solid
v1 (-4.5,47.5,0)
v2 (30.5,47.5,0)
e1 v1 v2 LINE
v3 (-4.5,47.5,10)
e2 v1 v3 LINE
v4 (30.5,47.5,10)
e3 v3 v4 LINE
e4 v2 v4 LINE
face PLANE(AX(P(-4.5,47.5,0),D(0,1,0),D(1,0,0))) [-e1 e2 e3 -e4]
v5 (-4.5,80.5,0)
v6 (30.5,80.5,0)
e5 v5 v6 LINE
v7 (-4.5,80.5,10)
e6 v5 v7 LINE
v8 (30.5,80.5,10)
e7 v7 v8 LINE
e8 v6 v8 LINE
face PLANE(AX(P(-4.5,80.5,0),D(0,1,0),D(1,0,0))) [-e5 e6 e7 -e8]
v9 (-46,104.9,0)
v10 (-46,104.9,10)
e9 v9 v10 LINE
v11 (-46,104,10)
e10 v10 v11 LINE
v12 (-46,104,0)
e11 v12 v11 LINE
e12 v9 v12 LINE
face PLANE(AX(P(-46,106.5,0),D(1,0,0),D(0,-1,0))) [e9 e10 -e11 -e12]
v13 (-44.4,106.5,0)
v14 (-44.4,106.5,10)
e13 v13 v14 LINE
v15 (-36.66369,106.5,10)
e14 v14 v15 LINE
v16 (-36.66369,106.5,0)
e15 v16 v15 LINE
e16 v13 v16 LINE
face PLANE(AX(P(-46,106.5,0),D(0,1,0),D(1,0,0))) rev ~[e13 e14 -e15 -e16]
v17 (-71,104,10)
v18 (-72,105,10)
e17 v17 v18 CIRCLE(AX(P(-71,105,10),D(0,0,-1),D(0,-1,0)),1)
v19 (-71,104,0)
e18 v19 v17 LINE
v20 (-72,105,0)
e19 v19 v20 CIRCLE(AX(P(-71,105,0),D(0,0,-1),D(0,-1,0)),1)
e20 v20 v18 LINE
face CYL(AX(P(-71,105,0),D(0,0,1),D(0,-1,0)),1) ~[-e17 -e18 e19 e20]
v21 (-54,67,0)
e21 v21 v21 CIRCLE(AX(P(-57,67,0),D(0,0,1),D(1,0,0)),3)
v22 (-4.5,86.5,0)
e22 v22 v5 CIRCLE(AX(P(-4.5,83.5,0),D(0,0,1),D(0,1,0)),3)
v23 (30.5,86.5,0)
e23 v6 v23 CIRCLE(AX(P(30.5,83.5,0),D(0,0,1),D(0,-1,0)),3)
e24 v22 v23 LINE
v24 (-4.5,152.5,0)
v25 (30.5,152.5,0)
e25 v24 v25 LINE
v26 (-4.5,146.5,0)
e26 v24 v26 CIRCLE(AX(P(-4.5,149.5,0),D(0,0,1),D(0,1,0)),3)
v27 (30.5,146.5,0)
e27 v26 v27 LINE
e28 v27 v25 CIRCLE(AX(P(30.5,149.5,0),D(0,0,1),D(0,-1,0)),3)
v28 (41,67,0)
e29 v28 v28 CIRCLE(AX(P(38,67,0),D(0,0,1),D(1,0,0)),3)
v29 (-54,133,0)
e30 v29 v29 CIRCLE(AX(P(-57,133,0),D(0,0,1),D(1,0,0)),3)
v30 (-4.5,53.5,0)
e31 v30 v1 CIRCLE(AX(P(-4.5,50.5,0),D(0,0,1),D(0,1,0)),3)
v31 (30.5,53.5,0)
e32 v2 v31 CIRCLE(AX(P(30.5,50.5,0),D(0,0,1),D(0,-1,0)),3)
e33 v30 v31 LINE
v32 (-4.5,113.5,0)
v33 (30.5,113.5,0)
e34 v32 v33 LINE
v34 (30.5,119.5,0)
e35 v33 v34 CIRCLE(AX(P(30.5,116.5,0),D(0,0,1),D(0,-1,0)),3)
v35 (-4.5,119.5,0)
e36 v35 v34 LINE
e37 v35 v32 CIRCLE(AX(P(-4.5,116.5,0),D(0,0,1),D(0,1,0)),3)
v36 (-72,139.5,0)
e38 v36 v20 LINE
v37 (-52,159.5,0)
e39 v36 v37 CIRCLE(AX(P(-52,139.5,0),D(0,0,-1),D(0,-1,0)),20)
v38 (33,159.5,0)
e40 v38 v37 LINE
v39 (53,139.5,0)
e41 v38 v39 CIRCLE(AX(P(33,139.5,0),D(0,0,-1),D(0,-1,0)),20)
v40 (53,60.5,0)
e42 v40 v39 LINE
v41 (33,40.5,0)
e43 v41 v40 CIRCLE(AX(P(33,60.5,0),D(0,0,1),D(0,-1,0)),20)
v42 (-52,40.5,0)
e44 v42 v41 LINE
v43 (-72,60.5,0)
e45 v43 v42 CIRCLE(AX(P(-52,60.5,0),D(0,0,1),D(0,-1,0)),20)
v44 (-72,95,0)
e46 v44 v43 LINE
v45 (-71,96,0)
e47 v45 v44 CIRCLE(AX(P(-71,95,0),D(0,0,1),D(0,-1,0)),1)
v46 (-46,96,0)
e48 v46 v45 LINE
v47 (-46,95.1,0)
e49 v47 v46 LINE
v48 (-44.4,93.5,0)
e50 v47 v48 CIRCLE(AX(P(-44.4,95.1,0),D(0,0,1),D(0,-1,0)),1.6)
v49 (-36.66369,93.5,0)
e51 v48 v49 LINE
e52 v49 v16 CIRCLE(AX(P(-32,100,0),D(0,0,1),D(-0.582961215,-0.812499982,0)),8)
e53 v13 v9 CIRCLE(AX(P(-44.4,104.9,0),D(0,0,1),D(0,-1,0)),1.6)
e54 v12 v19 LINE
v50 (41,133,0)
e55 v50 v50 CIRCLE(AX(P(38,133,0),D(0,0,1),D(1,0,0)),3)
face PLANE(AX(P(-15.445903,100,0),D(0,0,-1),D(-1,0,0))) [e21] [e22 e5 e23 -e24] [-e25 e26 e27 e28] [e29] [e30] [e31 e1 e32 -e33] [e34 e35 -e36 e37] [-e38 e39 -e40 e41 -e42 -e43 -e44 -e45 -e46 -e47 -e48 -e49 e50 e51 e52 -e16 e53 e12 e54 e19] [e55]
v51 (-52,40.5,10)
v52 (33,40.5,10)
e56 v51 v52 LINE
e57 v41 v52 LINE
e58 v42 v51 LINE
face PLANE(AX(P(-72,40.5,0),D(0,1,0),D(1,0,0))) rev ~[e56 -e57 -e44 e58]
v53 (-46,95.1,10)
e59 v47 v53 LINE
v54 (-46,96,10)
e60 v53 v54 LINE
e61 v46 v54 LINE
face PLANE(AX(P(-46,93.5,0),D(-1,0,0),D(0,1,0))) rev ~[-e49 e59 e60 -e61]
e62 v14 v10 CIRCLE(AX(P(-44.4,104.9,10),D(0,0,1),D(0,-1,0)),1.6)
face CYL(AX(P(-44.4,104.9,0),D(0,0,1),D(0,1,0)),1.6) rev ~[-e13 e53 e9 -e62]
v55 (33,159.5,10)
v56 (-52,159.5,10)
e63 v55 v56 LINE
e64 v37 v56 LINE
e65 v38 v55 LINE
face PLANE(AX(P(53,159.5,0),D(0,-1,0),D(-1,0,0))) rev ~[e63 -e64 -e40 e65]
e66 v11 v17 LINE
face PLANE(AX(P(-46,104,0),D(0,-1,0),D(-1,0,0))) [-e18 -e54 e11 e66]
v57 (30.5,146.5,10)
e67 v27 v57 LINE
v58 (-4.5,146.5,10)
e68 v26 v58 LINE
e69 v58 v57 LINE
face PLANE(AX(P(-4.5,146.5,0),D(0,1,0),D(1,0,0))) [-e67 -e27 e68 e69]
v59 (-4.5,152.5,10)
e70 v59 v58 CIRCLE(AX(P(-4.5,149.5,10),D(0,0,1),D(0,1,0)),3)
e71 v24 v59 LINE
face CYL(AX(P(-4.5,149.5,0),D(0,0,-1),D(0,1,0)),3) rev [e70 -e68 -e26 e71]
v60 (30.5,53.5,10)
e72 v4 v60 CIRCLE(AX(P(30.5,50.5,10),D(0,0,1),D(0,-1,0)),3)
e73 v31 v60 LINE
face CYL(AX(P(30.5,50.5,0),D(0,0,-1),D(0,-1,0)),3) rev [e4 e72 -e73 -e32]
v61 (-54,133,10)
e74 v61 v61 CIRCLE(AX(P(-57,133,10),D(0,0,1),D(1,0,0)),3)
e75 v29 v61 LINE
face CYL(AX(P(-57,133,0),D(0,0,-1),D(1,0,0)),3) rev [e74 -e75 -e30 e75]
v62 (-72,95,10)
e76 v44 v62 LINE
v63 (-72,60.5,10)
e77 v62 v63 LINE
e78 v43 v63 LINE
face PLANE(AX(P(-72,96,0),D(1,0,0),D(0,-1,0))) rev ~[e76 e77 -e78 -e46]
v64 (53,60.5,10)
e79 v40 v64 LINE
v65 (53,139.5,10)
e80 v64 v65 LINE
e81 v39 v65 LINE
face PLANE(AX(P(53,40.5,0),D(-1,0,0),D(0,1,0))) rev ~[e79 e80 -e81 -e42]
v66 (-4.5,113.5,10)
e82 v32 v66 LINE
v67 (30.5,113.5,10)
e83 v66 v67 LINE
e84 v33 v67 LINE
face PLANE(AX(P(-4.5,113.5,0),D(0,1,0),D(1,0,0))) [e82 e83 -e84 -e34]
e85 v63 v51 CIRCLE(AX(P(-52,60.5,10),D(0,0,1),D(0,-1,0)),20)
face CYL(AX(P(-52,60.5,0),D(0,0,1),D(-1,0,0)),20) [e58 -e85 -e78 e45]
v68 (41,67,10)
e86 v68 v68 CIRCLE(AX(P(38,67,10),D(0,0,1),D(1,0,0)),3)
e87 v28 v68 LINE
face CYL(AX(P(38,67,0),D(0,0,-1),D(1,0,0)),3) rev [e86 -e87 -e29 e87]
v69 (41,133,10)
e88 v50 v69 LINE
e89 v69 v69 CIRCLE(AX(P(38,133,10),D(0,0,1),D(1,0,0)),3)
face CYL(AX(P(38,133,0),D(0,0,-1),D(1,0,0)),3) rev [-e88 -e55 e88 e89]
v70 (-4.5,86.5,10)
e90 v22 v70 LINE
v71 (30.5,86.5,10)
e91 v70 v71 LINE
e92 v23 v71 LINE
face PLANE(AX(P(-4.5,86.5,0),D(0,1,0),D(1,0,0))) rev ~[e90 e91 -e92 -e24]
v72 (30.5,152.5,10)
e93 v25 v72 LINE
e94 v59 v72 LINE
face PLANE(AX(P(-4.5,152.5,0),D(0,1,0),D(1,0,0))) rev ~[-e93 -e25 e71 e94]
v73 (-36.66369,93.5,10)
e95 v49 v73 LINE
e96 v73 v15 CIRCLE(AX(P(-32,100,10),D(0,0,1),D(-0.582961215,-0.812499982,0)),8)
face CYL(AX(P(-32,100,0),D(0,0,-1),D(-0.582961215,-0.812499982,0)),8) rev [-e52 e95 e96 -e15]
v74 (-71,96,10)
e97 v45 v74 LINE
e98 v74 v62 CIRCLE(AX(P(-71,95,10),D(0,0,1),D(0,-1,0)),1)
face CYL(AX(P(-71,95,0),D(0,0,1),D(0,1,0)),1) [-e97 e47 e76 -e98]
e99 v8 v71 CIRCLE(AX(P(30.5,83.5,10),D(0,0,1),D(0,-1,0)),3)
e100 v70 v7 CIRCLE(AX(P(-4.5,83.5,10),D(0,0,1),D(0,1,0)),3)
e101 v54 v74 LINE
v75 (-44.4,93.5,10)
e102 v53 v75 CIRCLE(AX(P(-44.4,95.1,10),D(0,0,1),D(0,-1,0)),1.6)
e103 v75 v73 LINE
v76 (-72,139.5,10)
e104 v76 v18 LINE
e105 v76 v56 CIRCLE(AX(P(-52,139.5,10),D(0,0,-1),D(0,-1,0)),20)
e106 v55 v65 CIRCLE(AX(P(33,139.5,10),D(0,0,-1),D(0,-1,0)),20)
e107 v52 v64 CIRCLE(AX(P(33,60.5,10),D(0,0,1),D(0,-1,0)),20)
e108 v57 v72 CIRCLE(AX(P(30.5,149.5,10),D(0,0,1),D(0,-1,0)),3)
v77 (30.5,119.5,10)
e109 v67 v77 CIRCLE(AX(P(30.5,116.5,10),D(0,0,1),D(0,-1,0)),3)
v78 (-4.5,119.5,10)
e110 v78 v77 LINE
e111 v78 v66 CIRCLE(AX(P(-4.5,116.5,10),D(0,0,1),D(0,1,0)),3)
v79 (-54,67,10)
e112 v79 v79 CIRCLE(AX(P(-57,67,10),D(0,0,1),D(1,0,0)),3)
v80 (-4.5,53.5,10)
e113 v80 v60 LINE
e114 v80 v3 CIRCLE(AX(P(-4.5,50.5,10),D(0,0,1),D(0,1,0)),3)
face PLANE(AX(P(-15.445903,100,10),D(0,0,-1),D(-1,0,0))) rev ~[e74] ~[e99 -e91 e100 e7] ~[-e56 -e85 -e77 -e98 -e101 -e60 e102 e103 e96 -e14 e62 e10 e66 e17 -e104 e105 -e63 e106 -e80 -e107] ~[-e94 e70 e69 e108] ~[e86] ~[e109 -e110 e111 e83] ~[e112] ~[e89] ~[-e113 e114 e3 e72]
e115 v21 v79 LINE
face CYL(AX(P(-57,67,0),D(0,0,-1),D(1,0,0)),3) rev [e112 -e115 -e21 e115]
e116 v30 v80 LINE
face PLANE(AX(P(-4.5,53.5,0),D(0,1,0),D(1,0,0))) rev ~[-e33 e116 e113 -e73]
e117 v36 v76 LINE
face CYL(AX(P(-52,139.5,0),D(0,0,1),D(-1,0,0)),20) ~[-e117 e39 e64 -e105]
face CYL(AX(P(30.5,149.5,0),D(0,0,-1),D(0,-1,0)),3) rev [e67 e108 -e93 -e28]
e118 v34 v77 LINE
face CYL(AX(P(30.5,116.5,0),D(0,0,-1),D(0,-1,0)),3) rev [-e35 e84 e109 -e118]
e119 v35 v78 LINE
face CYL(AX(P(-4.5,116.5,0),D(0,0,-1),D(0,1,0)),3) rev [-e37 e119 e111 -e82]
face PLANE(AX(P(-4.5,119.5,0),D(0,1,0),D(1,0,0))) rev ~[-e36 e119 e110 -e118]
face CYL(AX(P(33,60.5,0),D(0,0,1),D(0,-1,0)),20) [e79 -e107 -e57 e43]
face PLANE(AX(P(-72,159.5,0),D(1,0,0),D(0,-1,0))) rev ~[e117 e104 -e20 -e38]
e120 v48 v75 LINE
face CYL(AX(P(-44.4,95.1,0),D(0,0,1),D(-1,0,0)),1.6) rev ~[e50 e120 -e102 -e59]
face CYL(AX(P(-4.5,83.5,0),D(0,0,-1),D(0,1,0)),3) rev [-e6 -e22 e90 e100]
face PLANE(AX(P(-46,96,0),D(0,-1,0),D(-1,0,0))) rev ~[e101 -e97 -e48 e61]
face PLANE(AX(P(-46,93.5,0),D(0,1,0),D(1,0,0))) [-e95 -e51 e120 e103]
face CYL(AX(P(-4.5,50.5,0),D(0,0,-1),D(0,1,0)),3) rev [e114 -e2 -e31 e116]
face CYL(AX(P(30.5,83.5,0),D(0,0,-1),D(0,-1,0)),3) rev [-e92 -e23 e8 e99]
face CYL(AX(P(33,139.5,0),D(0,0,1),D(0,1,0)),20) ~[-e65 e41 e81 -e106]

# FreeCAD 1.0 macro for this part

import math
import FreeCAD as App
import Part
import Sketcher
from FreeCAD import Vector


def edges_at(feature, points):
    """Names of the edges that pass closest to the given points."""
    edges = feature.Shape.Edges
    near = lambda p: min(range(len(edges)), key=lambda i: edges[i].distToShape(Part.Vertex(*p))[0])
    return sorted({f"Edge{near(p) + 1}" for p in points})

doc = App.newDocument("Part")
body = doc.addObject("PartDesign::Body", "Body")

# Sketch on XY plane
sketch1 = body.newObject("Sketcher::SketchObject", "Sketch")
sketch1.AttachmentSupport = (doc.getObject("XY_Plane"), [""])
sketch1.MapMode = "FlatFace"
sketch1.addGeometry(Part.ArcOfCircle(Part.Circle(Vector(-32, 100, 0), Vector(0, 0, 1), 8), math.radians(-126), math.radians(126)), False)
sketch1.addGeometry(Part.LineSegment(Vector(-36.7, 93.5, 0), Vector(-46, 93.5, 0)), False)
sketch1.addGeometry(Part.LineSegment(Vector(-46, 93.5, 0), Vector(-46, 96, 0)), False)
sketch1.addGeometry(Part.LineSegment(Vector(-46, 96, 0), Vector(-72, 96, 0)), False)
sketch1.addGeometry(Part.LineSegment(Vector(-72, 96, 0), Vector(-72, 40.5, 0)), False)
sketch1.addGeometry(Part.LineSegment(Vector(-72, 40.5, 0), Vector(53, 40.5, 0)), False)
sketch1.addGeometry(Part.LineSegment(Vector(53, 40.5, 0), Vector(53, 159.5, 0)), False)
sketch1.addGeometry(Part.LineSegment(Vector(53, 159.5, 0), Vector(-72, 159.5, 0)), False)
sketch1.addGeometry(Part.LineSegment(Vector(-72, 159.5, 0), Vector(-72, 104, 0)), False)
sketch1.addGeometry(Part.LineSegment(Vector(-72, 104, 0), Vector(-46, 104, 0)), False)
sketch1.addGeometry(Part.LineSegment(Vector(-46, 104, 0), Vector(-46, 106.5, 0)), False)
sketch1.addGeometry(Part.LineSegment(Vector(-46, 106.5, 0), Vector(-36.7, 106.5, 0)), False)
sketch1.addGeometry(Part.Circle(Vector(38, 67, 0), Vector(0, 0, 1), 3), False)
sketch1.addGeometry(Part.LineSegment(Vector(-4.5, 53.5, 0), Vector(30.5, 53.5, 0)), False)
sketch1.addGeometry(Part.ArcOfCircle(Part.Circle(Vector(30.5, 50.5, 0), Vector(0, 0, 1), 3), math.radians(-90), math.radians(90)), False)
sketch1.addGeometry(Part.LineSegment(Vector(30.5, 47.5, 0), Vector(-4.5, 47.5, 0)), False)
sketch1.addGeometry(Part.ArcOfCircle(Part.Circle(Vector(-4.5, 50.5, 0), Vector(0, 0, 1), 3), math.radians(90), math.radians(270)), False)
sketch1.addGeometry(Part.LineSegment(Vector(-4.5, 86.5, 0), Vector(30.5, 86.5, 0)), False)
sketch1.addGeometry(Part.ArcOfCircle(Part.Circle(Vector(30.5, 83.5, 0), Vector(0, 0, 1), 3), math.radians(-90), math.radians(90)), False)
sketch1.addGeometry(Part.LineSegment(Vector(30.5, 80.5, 0), Vector(-4.5, 80.5, 0)), False)
sketch1.addGeometry(Part.ArcOfCircle(Part.Circle(Vector(-4.5, 83.5, 0), Vector(0, 0, 1), 3), math.radians(90), math.radians(270)), False)
sketch1.addGeometry(Part.Circle(Vector(-57, 67, 0), Vector(0, 0, 1), 3), False)
sketch1.addGeometry(Part.LineSegment(Vector(-4.5, 119.5, 0), Vector(30.5, 119.5, 0)), False)
sketch1.addGeometry(Part.ArcOfCircle(Part.Circle(Vector(30.5, 116.5, 0), Vector(0, 0, 1), 3), math.radians(-90), math.radians(90)), False)
sketch1.addGeometry(Part.LineSegment(Vector(30.5, 113.5, 0), Vector(-4.5, 113.5, 0)), False)
sketch1.addGeometry(Part.ArcOfCircle(Part.Circle(Vector(-4.5, 116.5, 0), Vector(0, 0, 1), 3), math.radians(90), math.radians(270)), False)
sketch1.addGeometry(Part.Circle(Vector(38, 133, 0), Vector(0, 0, 1), 3), False)
sketch1.addGeometry(Part.LineSegment(Vector(-4.5, 152.5, 0), Vector(30.5, 152.5, 0)), False)
sketch1.addGeometry(Part.ArcOfCircle(Part.Circle(Vector(30.5, 149.5, 0), Vector(0, 0, 1), 3), math.radians(-90), math.radians(90)), False)
sketch1.addGeometry(Part.LineSegment(Vector(30.5, 146.5, 0), Vector(-4.5, 146.5, 0)), False)
sketch1.addGeometry(Part.ArcOfCircle(Part.Circle(Vector(-4.5, 149.5, 0), Vector(0, 0, 1), 3), math.radians(90), math.radians(270)), False)
sketch1.addGeometry(Part.Circle(Vector(-57, 133, 0), Vector(0, 0, 1), 3), False)
sketch1.addConstraint(Sketcher.Constraint("Coincident", 0, 1, 1, 1))
sketch1.addConstraint(Sketcher.Constraint("Coincident", 1, 2, 2, 1))
sketch1.addConstraint(Sketcher.Constraint("Coincident", 2, 2, 3, 1))
sketch1.addConstraint(Sketcher.Constraint("Coincident", 3, 2, 4, 1))
sketch1.addConstraint(Sketcher.Constraint("Coincident", 4, 2, 5, 1))
sketch1.addConstraint(Sketcher.Constraint("Coincident", 5, 2, 6, 1))
sketch1.addConstraint(Sketcher.Constraint("Coincident", 6, 2, 7, 1))
sketch1.addConstraint(Sketcher.Constraint("Coincident", 7, 2, 8, 1))
sketch1.addConstraint(Sketcher.Constraint("Coincident", 8, 2, 9, 1))
sketch1.addConstraint(Sketcher.Constraint("Coincident", 9, 2, 10, 1))
sketch1.addConstraint(Sketcher.Constraint("Coincident", 10, 2, 11, 1))
sketch1.addConstraint(Sketcher.Constraint("Coincident", 11, 2, 0, 2))
sketch1.addConstraint(Sketcher.Constraint("Tangent", 13, 2, 14, 2))
sketch1.addConstraint(Sketcher.Constraint("Tangent", 14, 1, 15, 1))
sketch1.addConstraint(Sketcher.Constraint("Tangent", 15, 2, 16, 2))
sketch1.addConstraint(Sketcher.Constraint("Tangent", 16, 1, 13, 1))
sketch1.addConstraint(Sketcher.Constraint("Tangent", 17, 2, 18, 2))
sketch1.addConstraint(Sketcher.Constraint("Tangent", 18, 1, 19, 1))
sketch1.addConstraint(Sketcher.Constraint("Tangent", 19, 2, 20, 2))
sketch1.addConstraint(Sketcher.Constraint("Tangent", 20, 1, 17, 1))
sketch1.addConstraint(Sketcher.Constraint("Tangent", 22, 2, 23, 2))
sketch1.addConstraint(Sketcher.Constraint("Tangent", 23, 1, 24, 1))
sketch1.addConstraint(Sketcher.Constraint("Tangent", 24, 2, 25, 2))
sketch1.addConstraint(Sketcher.Constraint("Tangent", 25, 1, 22, 1))
sketch1.addConstraint(Sketcher.Constraint("Tangent", 27, 2, 28, 2))
sketch1.addConstraint(Sketcher.Constraint("Tangent", 28, 1, 29, 1))
sketch1.addConstraint(Sketcher.Constraint("Tangent", 29, 2, 30, 2))
sketch1.addConstraint(Sketcher.Constraint("Tangent", 30, 1, 27, 1))
sketch1.addConstraint(Sketcher.Constraint("Horizontal", 1))
sketch1.addConstraint(Sketcher.Constraint("Vertical", 2))
sketch1.addConstraint(Sketcher.Constraint("Horizontal", 3))
sketch1.addConstraint(Sketcher.Constraint("Vertical", 4))
sketch1.addConstraint(Sketcher.Constraint("Horizontal", 5))
sketch1.addConstraint(Sketcher.Constraint("Vertical", 6))
sketch1.addConstraint(Sketcher.Constraint("Horizontal", 7))
sketch1.addConstraint(Sketcher.Constraint("Vertical", 8))
sketch1.addConstraint(Sketcher.Constraint("Horizontal", 9))
sketch1.addConstraint(Sketcher.Constraint("Vertical", 10))
sketch1.addConstraint(Sketcher.Constraint("Horizontal", 11))
sketch1.addConstraint(Sketcher.Constraint("Horizontal", 13))
sketch1.addConstraint(Sketcher.Constraint("Horizontal", 15))
sketch1.addConstraint(Sketcher.Constraint("Horizontal", 17))
sketch1.addConstraint(Sketcher.Constraint("Horizontal", 19))
sketch1.addConstraint(Sketcher.Constraint("Horizontal", 22))
sketch1.addConstraint(Sketcher.Constraint("Horizontal", 24))
sketch1.addConstraint(Sketcher.Constraint("Horizontal", 27))
sketch1.addConstraint(Sketcher.Constraint("Horizontal", 29))
sketch1.addConstraint(Sketcher.Constraint("Equal", 12, 14))
sketch1.addConstraint(Sketcher.Constraint("Equal", 16, 18))
sketch1.addConstraint(Sketcher.Constraint("Equal", 20, 21))
sketch1.addConstraint(Sketcher.Constraint("Equal", 21, 23))
sketch1.addConstraint(Sketcher.Constraint("Equal", 25, 26))
sketch1.addConstraint(Sketcher.Constraint("Equal", 26, 28))
sketch1.addConstraint(Sketcher.Constraint("Equal", 30, 31))
sketch1.addConstraint(Sketcher.Constraint("Horizontal", 12, 3, 21, 3))
sketch1.addConstraint(Sketcher.Constraint("Horizontal", 26, 3, 31, 3))
sketch1.addConstraint(Sketcher.Constraint("Vertical", 14, 3, 18, 3))
sketch1.addConstraint(Sketcher.Constraint("Vertical", 16, 3, 20, 3))
sketch1.addConstraint(Sketcher.Constraint("Vertical", 18, 3, 23, 3))
sketch1.addConstraint(Sketcher.Constraint("Vertical", 20, 3, 25, 3))
sketch1.addConstraint(Sketcher.Constraint("Vertical", 12, 3, 26, 3))
sketch1.addConstraint(Sketcher.Constraint("Vertical", 23, 3, 28, 3))
sketch1.addConstraint(Sketcher.Constraint("Vertical", 25, 3, 30, 3))
sketch1.addConstraint(Sketcher.Constraint("Vertical", 21, 3, 31, 3))
sketch1.addConstraint(Sketcher.Constraint("Vertical", 4, 2, 7, 2))
sketch1.addConstraint(Sketcher.Constraint("Vertical", 2, 2, 9, 2))
sketch1.addConstraint(Sketcher.Constraint("Vertical", 0, 1, 11, 2))
sketch1.addConstraint(Sketcher.Constraint("Equal", 4, 8))
sketch1.addConstraint(Sketcher.Constraint("Equal", 2, 10))
sketch1.addConstraint(Sketcher.Constraint("Diameter", 12, 6.0))
sketch1.addConstraint(Sketcher.Constraint("Radius", 0, 8.0))
sketch1.addConstraint(Sketcher.Constraint("DistanceX", 3, 2, 3, 1, 26.0))
sketch1.addConstraint(Sketcher.Constraint("DistanceX", 5, 1, 5, 2, 125.0))
sketch1.addConstraint(Sketcher.Constraint("DistanceX", 13, 1, 13, 2, 35.0))
sketch1.addConstraint(Sketcher.Constraint("DistanceY", 6, 1, 6, 2, 119.0))
sketch1.addConstraint(Sketcher.Constraint("DistanceY", 2, 1, 2, 2, 2.5))
sketch1.addConstraint(Sketcher.Constraint("DistanceY", 4, 2, 4, 1, 55.5))
sketch1.addConstraint(Sketcher.Constraint("DistanceX", 0, 3, -1, 1, 32.0))
sketch1.addConstraint(Sketcher.Constraint("DistanceY", -1, 1, 0, 3, 100.0))
sketch1.addConstraint(Sketcher.Constraint("DistanceX", -1, 1, 12, 3, 38.0))
sketch1.addConstraint(Sketcher.Constraint("DistanceY", -1, 1, 12, 3, 67.0))
sketch1.addConstraint(Sketcher.Constraint("DistanceX", 21, 3, -1, 1, 57.0))
sketch1.addConstraint(Sketcher.Constraint("DistanceY", -1, 1, 26, 3, 133.0))
sketch1.addConstraint(Sketcher.Constraint("DistanceX", 1, 2, -1, 1, 46.0))
sketch1.addConstraint(Sketcher.Constraint("DistanceY", 14, 3, 18, 3, 33.0))
sketch1.addConstraint(Sketcher.Constraint("DistanceY", 18, 3, 23, 3, 33.0))
sketch1.addConstraint(Sketcher.Constraint("DistanceY", 23, 3, 28, 3, 33.0))
sketch1.addConstraint(Sketcher.Constraint("DistanceY", 20, 3, 0, 1, 10.0))
sketch1.addConstraint(Sketcher.Constraint("DistanceX", -1, 1, 14, 3, 30.5))
pad1 = body.newObject("PartDesign::Pad", "Pad")
pad1.Profile = sketch1
pad1.Length = 10
doc.recompute()

fillet = body.newObject("PartDesign::Fillet", "Fillet")
fillet.Base = (pad1, edges_at(pad1, [
    (-72, 159.5, 5),
    (53, 40.5, 5),
    (-72, 40.5, 5),
    (53, 159.5, 5),
]))
fillet.Radius = 20
doc.recompute()

fillet2 = body.newObject("PartDesign::Fillet", "Fillet001")
fillet2.Base = (fillet, edges_at(fillet, [(-46, 106.5, 5), (-46, 93.5, 5)]))
fillet2.Radius = 1.6
doc.recompute()

fillet3 = body.newObject("PartDesign::Fillet", "Fillet002")
fillet3.Base = (fillet2, edges_at(fillet2, [(-72, 104, 5), (-72, 96, 5)]))
fillet3.Radius = 1

doc.recompute()
